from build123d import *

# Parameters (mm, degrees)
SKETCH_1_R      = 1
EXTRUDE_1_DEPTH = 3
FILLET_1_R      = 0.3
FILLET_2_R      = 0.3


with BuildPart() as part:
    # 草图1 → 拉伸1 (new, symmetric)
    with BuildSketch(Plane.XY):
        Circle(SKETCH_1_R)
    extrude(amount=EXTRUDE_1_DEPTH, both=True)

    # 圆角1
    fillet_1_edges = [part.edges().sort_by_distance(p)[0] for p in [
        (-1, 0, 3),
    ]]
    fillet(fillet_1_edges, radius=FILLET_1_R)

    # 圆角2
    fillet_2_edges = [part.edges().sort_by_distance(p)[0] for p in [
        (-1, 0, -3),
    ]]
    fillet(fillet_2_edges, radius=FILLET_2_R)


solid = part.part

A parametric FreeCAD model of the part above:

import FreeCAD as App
import Part
import Sketcher

V = App.Vector


def edges_at(feature, points):
    """Names of the edges that pass closest to the given points."""
    edges = feature.Shape.Edges
    near = lambda p: min(range(len(edges)), key=lambda i: edges[i].distToShape(Part.Vertex(*p))[0])
    return sorted({f"Edge{near(p) + 1}" for p in points})

doc = App.newDocument("Part")
params = doc.addObject("Spreadsheet::Sheet", "Params")
for row, (alias, value) in enumerate([
    ("sketch1_diameter", "2 mm"),
    ("pad1_length", "6 mm"),
    ("fillet_radius", "0.3 mm"),
    ("fillet2_radius", "0.3 mm"),
], start=1):
    params.set(f"A{row}", alias)
    params.set(f"B{row}", "=" + value)
    params.setAlias(f"B{row}", alias)

body = doc.addObject("PartDesign::Body", "Body")

# Sketch on XY plane
sketch1 = body.newObject("Sketcher::SketchObject", "Sketch")
sketch1.AttachmentSupport = (doc.getObject("XY_Plane"), [""])
sketch1.MapMode = "FlatFace"
sketch1.addGeometry(Part.Circle(V(0, 0, 0), V(0, 0, 1), 1), False)
sketch1.addConstraint([
    Sketcher.Constraint("Coincident", 0, 3, -1, 1),
    Sketcher.Constraint("Diameter", 0, 2.0),
])
sketch1.setExpression("Constraints[1]", "Params.sketch1_diameter")
pad1 = body.newObject("PartDesign::Pad", "Pad")
pad1.Profile = sketch1
pad1.setExpression("Length", "Params.pad1_length")
pad1.Midplane = True
doc.recompute()

fillet = body.newObject("PartDesign::Fillet", "Fillet")
fillet.Base = (pad1, edges_at(pad1, [(-1, 0, 3)]))
fillet.setExpression("Radius", "Params.fillet_radius")
doc.recompute()

fillet2 = body.newObject("PartDesign::Fillet", "Fillet001")
fillet2.Base = (fillet, edges_at(fillet, [(-1, 0, -3)]))
fillet2.setExpression("Radius", "Params.fillet2_radius")

doc.recompute()
